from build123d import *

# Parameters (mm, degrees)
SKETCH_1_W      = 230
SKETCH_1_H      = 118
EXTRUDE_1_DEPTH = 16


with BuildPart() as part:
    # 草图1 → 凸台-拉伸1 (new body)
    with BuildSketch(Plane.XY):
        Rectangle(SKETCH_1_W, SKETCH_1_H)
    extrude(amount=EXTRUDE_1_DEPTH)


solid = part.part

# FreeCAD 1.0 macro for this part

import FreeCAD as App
import Part
import Sketcher

V = App.Vector

doc = App.newDocument("Part")
body = doc.addObject("PartDesign::Body", "Body")

sketch1 = doc.addObject("Sketcher::SketchObject", "Sketch")
body.addObject(sketch1)
sketch1.AttachmentSupport = (doc.XY_Plane, [""])
sketch1.MapMode = "FlatFace"
sketch1.addGeometry(Part.LineSegment(V(-115, 59, 0), V(-115, -59, 0)), False)
sketch1.addGeometry(Part.LineSegment(V(-115, -59, 0), V(115, -59, 0)), False)
sketch1.addGeometry(Part.LineSegment(V(115, -59, 0), V(115, 59, 0)), False)
sketch1.addGeometry(Part.LineSegment(V(115, 59, 0), V(-115, 59, 0)), False)
sketch1.addConstraint(Sketcher.Constraint("Coincident", 0, 2, 1, 1))
sketch1.addConstraint(Sketcher.Constraint("Coincident", 1, 2, 2, 1))
sketch1.addConstraint(Sketcher.Constraint("Coincident", 2, 2, 3, 1))
sketch1.addConstraint(Sketcher.Constraint("Coincident", 3, 2, 0, 1))
sketch1.addConstraint(Sketcher.Constraint("Vertical", 0))
sketch1.addConstraint(Sketcher.Constraint("Horizontal", 1))
sketch1.addConstraint(Sketcher.Constraint("Vertical", 2))
sketch1.addConstraint(Sketcher.Constraint("Horizontal", 3))
sketch1.addConstraint(Sketcher.Constraint("Symmetric", 0, 2, 2, 2, -1, 1))
sketch1.addConstraint(Sketcher.Constraint("DistanceX", 1, 1, 1, 2, 230.0))
sketch1.addConstraint(Sketcher.Constraint("DistanceY", 0, 2, 0, 1, 118.0))
pad1 = doc.addObject("PartDesign::Pad", "Pad")
body.addObject(pad1)
pad1.Profile = sketch1
pad1.Length = 16

doc.recompute()
